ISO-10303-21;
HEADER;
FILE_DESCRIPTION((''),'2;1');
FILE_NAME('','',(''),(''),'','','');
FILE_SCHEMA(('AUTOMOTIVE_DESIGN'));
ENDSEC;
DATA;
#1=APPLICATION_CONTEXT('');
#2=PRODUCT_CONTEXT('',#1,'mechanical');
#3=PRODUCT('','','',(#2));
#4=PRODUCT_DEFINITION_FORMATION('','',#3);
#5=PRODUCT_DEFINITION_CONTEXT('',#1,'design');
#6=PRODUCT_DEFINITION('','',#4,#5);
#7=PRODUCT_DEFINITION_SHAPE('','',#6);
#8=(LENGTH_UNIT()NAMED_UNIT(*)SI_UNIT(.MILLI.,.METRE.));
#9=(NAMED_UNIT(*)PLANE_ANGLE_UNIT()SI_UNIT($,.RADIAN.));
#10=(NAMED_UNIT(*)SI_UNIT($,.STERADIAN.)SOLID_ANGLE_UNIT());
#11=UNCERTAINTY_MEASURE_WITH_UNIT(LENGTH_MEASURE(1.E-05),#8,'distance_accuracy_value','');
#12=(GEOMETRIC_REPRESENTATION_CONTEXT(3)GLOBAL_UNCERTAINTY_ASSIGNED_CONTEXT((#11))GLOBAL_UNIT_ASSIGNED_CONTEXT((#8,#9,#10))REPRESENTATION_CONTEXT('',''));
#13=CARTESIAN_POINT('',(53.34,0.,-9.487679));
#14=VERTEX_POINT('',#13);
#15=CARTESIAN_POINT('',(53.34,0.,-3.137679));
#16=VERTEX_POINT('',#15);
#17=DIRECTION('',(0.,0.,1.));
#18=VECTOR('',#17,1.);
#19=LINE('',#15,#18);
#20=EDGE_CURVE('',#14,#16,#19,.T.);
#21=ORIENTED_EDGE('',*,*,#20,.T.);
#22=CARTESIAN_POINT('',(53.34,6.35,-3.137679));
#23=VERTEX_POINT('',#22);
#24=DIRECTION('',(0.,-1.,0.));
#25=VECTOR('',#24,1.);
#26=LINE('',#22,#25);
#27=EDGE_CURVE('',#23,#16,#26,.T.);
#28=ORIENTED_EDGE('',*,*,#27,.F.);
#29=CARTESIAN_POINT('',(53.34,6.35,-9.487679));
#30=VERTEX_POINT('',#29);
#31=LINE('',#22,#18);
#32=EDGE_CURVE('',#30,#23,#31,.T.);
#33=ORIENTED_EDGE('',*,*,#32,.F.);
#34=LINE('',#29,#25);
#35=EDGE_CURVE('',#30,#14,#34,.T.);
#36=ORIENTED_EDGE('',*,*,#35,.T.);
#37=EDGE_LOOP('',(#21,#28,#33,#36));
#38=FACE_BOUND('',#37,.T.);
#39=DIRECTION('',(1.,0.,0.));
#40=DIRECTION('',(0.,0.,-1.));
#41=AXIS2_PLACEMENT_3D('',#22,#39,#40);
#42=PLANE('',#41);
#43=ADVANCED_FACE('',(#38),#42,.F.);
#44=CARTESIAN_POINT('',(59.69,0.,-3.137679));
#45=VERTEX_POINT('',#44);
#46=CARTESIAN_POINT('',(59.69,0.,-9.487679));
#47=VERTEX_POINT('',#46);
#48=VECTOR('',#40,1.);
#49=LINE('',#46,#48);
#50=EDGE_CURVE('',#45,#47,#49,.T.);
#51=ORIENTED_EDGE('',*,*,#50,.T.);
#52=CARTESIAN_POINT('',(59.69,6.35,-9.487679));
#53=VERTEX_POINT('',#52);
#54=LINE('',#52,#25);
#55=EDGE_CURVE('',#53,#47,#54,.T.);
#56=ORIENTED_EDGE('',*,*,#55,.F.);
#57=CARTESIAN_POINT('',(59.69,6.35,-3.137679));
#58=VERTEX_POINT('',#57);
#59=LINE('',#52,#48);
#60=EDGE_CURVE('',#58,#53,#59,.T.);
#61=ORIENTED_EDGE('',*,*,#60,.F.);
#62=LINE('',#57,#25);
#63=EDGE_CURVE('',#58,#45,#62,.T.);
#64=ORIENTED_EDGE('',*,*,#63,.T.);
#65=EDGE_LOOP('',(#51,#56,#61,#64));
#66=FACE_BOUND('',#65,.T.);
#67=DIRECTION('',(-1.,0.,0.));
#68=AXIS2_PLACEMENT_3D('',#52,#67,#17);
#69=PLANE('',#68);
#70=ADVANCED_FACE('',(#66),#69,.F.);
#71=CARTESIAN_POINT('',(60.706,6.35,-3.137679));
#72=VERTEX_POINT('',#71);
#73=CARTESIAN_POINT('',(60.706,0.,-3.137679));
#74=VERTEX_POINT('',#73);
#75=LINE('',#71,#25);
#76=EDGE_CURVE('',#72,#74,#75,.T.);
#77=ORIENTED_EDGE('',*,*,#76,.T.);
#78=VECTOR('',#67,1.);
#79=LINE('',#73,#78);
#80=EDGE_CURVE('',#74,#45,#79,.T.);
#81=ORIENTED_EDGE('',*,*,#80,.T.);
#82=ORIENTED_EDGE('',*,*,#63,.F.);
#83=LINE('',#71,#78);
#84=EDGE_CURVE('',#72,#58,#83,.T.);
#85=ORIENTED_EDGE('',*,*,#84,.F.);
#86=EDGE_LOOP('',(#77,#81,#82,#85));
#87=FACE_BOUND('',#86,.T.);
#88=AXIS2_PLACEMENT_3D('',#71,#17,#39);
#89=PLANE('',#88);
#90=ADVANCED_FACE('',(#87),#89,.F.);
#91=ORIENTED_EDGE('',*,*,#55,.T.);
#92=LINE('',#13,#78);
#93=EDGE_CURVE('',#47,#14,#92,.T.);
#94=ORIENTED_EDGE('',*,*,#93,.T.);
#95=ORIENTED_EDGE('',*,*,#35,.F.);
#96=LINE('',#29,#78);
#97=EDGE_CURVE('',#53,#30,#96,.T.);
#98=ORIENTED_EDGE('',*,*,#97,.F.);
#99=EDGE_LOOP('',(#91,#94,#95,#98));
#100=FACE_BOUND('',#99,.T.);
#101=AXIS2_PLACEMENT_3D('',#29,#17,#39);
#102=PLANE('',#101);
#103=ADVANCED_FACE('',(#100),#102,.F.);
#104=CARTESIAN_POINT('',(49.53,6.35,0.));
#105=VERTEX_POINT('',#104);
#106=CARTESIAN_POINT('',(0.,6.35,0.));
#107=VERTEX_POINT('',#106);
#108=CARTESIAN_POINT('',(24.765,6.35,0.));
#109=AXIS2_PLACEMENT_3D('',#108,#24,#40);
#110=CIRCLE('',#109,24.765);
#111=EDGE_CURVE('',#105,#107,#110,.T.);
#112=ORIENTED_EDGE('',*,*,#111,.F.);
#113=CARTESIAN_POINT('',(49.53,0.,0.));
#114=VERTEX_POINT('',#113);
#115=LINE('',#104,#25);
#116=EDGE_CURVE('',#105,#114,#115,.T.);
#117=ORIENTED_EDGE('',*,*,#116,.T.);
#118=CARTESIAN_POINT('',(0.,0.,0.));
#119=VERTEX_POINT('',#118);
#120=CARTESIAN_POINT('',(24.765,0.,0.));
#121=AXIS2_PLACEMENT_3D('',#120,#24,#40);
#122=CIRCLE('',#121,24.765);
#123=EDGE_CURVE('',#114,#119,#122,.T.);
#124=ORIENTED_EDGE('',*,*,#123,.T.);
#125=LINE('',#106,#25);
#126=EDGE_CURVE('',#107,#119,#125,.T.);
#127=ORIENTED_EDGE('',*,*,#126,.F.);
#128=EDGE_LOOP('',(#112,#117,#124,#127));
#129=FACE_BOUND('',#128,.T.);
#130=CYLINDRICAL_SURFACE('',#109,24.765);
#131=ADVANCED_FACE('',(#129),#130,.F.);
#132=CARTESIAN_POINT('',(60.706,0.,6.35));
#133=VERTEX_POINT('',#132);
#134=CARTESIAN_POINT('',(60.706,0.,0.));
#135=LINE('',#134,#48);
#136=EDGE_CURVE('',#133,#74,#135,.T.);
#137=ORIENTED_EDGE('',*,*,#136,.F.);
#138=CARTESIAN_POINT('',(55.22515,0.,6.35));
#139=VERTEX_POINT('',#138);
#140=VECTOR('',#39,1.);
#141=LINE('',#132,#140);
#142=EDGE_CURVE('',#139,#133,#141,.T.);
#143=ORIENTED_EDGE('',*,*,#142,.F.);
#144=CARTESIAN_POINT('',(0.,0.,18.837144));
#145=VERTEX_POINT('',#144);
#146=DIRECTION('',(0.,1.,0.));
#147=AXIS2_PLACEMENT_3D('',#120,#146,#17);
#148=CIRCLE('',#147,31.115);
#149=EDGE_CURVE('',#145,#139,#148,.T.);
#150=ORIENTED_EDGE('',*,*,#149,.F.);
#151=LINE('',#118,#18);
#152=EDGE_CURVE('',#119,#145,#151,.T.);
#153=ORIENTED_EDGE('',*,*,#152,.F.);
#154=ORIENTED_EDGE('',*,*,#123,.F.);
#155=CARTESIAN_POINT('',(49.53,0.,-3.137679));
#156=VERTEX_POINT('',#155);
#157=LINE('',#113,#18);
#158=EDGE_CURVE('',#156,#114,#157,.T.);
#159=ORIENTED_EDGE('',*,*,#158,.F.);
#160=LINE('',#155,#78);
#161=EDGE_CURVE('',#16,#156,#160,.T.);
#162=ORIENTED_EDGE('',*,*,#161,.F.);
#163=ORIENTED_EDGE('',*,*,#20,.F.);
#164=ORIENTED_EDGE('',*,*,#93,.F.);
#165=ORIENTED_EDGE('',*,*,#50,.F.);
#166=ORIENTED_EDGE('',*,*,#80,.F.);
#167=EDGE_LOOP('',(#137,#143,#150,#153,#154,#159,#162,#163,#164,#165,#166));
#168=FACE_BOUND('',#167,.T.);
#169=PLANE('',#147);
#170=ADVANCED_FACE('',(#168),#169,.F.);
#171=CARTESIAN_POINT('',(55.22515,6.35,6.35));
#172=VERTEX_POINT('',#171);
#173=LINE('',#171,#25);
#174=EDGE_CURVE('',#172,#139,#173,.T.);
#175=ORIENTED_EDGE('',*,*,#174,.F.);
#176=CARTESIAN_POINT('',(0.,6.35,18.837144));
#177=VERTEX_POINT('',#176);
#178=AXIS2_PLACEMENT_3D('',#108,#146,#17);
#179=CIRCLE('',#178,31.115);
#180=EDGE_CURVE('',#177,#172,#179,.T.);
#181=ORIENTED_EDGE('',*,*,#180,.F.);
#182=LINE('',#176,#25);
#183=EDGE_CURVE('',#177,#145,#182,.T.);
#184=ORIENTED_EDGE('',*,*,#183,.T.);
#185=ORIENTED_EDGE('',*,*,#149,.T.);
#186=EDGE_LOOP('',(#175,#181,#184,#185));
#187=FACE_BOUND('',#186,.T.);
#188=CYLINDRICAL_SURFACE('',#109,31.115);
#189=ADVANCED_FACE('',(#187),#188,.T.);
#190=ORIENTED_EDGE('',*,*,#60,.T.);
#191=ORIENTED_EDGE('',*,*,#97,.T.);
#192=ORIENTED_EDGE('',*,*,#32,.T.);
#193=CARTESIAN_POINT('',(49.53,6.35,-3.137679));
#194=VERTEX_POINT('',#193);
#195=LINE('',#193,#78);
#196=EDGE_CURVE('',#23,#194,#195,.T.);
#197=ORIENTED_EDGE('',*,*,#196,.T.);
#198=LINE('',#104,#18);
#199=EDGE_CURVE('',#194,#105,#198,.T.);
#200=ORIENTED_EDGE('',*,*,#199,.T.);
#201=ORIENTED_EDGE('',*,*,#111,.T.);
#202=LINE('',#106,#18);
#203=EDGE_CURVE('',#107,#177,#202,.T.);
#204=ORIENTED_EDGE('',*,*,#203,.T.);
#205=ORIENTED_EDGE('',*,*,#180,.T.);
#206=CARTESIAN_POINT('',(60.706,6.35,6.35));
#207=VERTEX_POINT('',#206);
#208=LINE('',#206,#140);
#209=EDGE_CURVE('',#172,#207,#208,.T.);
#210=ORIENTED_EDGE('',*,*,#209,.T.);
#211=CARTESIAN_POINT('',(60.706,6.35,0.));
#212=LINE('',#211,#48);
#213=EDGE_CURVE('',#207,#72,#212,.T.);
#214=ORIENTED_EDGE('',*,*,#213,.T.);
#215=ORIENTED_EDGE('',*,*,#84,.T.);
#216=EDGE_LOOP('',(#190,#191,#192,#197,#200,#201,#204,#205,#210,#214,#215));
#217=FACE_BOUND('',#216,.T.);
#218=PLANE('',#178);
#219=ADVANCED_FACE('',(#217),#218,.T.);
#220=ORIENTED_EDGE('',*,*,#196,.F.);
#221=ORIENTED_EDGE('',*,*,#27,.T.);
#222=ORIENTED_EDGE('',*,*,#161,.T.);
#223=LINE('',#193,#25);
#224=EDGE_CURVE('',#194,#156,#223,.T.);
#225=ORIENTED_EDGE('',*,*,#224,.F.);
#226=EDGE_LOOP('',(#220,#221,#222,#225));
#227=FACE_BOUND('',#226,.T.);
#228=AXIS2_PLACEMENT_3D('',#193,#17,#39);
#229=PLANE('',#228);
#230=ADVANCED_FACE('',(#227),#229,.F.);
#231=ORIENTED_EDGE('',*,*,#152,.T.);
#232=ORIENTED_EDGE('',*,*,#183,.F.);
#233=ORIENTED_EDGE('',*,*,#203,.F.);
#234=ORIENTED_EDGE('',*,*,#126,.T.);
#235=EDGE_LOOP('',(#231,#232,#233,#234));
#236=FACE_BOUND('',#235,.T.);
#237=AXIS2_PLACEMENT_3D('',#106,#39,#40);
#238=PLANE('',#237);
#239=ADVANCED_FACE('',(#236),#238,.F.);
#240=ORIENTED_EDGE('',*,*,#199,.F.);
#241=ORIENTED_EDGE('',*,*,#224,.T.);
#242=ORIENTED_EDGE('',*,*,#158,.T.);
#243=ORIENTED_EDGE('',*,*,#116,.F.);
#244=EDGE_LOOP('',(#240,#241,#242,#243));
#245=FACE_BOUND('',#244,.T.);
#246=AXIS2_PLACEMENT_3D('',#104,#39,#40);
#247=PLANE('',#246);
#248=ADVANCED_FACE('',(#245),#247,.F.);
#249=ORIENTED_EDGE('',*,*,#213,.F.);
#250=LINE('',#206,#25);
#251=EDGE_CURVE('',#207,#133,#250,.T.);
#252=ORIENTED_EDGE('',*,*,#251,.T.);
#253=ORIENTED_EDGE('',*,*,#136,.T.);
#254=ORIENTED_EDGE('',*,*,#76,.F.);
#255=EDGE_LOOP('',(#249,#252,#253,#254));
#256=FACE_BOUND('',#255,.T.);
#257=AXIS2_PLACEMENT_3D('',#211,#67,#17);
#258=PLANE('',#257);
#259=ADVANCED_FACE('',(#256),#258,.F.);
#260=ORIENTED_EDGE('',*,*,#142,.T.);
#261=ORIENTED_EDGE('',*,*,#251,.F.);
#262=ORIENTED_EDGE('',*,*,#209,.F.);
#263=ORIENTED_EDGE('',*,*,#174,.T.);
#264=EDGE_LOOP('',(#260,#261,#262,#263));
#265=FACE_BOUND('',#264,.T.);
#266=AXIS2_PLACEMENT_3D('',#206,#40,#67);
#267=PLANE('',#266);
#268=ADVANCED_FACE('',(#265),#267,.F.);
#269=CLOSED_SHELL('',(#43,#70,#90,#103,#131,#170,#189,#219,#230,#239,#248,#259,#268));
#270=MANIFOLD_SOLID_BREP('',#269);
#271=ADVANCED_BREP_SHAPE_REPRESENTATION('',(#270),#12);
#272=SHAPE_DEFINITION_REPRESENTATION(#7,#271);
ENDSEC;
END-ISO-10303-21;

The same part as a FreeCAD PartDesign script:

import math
import FreeCAD as App
import Part
import Sketcher
from FreeCAD import Vector
Q = App.Units.Quantity

doc = App.newDocument("Part")
body = doc.addObject("PartDesign::Body", "Body")

# Sketch on XZ plane
sketch1 = doc.addObject("Sketcher::SketchObject", "Sketch")
body.addObject(sketch1)
sketch1.AttachmentSupport = (doc.XZ_Plane, [""])
sketch1.MapMode = "FlatFace"
sketch1.addGeometry(Part.LineSegment(Vector(53.34, -9.487679, 0), Vector(53.34, -3.137679, 0)), False)
sketch1.addGeometry(Part.LineSegment(Vector(53.34, -3.137679, 0), Vector(49.53, -3.137679, 0)), False)
sketch1.addGeometry(Part.LineSegment(Vector(49.53, -3.137679, 0), Vector(49.53, 0, 0)), False)
sketch1.addGeometry(Part.ArcOfCircle(Part.Circle(Vector(24.765, 0, 0), Vector(0, 0, 1), 24.765), math.radians(0), math.radians(180)), False)
sketch1.addGeometry(Part.LineSegment(Vector(0, 0, 0), Vector(0, 18.837144, 0)), False)
sketch1.addGeometry(Part.ArcOfCircle(Part.Circle(Vector(24.765, 0, 0), Vector(0, 0, 1), 31.115), math.radians(11.775744), math.radians(142.742084)), False)
sketch1.addGeometry(Part.LineSegment(Vector(55.22515, 6.35, 0), Vector(60.706, 6.35, 0)), False)
sketch1.addGeometry(Part.LineSegment(Vector(60.706, 6.35, 0), Vector(60.706, -3.137679, 0)), False)
sketch1.addGeometry(Part.LineSegment(Vector(60.706, -3.137679, 0), Vector(59.69, -3.137679, 0)), False)
sketch1.addGeometry(Part.LineSegment(Vector(59.69, -3.137679, 0), Vector(59.69, -9.487679, 0)), False)
sketch1.addGeometry(Part.LineSegment(Vector(59.69, -9.487679, 0), Vector(53.34, -9.487679, 0)), False)
sketch1.addConstraint(Sketcher.Constraint("Coincident", 0, 2, 1, 1))
sketch1.addConstraint(Sketcher.Constraint("Coincident", 1, 2, 2, 1))
sketch1.addConstraint(Sketcher.Constraint("Tangent", 2, 2, 3, 1))
sketch1.addConstraint(Sketcher.Constraint("Tangent", 3, 2, 4, 1))
sketch1.addConstraint(Sketcher.Constraint("Coincident", 4, 2, 5, 2))
sketch1.addConstraint(Sketcher.Constraint("Coincident", 5, 1, 6, 1))
sketch1.addConstraint(Sketcher.Constraint("Coincident", 6, 2, 7, 1))
sketch1.addConstraint(Sketcher.Constraint("Coincident", 7, 2, 8, 1))
sketch1.addConstraint(Sketcher.Constraint("Coincident", 8, 2, 9, 1))
sketch1.addConstraint(Sketcher.Constraint("Coincident", 9, 2, 10, 1))
sketch1.addConstraint(Sketcher.Constraint("Coincident", 10, 2, 0, 1))
sketch1.addConstraint(Sketcher.Constraint("Vertical", 0))
sketch1.addConstraint(Sketcher.Constraint("Horizontal", 1))
sketch1.addConstraint(Sketcher.Constraint("Vertical", 2))
sketch1.addConstraint(Sketcher.Constraint("Vertical", 4))
sketch1.addConstraint(Sketcher.Constraint("Horizontal", 6))
sketch1.addConstraint(Sketcher.Constraint("Vertical", 7))
sketch1.addConstraint(Sketcher.Constraint("Horizontal", 8))
sketch1.addConstraint(Sketcher.Constraint("Vertical", 9))
sketch1.addConstraint(Sketcher.Constraint("Horizontal", 10))
sketch1.addConstraint(Sketcher.Constraint("Coincident", 3, 2, -1, 1))
sketch1.addConstraint(Sketcher.Constraint("Coincident", 5, 3, 3, 3))
sketch1.addConstraint(Sketcher.Constraint("Horizontal", 1, 2, 7, 2))
sketch1.addConstraint(Sketcher.Constraint("Equal", 10, 0))
sketch1.addConstraint(Sketcher.Constraint("Radius", 3, Q("0.975 in")))
sketch1.addConstraint(Sketcher.Constraint("Radius", 5, Q("1.225 in")))
sketch1.addConstraint(Sketcher.Constraint("DistanceX", 1, 2, 1, 1, Q("0.15 in")))
sketch1.addConstraint(Sketcher.Constraint("DistanceX", 8, 2, 8, 1, Q("0.04 in")))
sketch1.addConstraint(Sketcher.Constraint("DistanceX", 10, 2, 10, 1, Q("0.25 in")))
sketch1.addConstraint(Sketcher.Constraint("DistanceY", -1, 1, 5, 1, Q("0.25 in")))
sketch1.addConstraint(Sketcher.Constraint("DistanceY", 2, 1, 2, 2, 3.137679))
pad1 = doc.addObject("PartDesign::Pad", "Pad")
body.addObject(pad1)
pad1.Profile = sketch1
pad1.Length = Q("0.25 in")
pad1.Reversed = True

doc.recompute()
